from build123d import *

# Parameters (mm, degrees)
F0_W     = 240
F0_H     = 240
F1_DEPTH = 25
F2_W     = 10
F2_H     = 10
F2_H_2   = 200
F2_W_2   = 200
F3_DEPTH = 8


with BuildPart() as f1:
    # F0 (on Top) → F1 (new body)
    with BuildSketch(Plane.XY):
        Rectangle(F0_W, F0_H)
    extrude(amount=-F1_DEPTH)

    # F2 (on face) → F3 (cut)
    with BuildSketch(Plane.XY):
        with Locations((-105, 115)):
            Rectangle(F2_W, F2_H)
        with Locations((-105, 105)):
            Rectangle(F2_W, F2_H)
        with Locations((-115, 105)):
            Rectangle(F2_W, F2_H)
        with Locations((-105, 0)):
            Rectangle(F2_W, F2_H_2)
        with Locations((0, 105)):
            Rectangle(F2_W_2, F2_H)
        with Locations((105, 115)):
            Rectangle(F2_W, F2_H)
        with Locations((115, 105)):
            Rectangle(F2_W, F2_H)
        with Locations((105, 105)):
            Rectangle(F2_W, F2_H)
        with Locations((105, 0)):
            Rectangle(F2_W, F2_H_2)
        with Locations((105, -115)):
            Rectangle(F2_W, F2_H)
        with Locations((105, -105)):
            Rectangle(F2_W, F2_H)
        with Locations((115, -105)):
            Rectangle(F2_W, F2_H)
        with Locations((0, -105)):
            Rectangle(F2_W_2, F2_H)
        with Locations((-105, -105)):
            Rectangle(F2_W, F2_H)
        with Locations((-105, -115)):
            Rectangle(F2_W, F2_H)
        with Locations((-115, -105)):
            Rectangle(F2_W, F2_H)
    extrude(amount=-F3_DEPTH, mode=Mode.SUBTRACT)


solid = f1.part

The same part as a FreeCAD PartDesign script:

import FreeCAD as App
import Part
import Sketcher

doc = App.newDocument("Part")
params = doc.addObject("Spreadsheet::Sheet", "Params")
for row, (alias, value) in enumerate([
    ("sketch1_width", "240 mm"),
    ("pad1_length", "25 mm"),
    ("sketch2_width", "10 mm"),
    ("sketch2_width2", "200 mm"),
    ("pocket1_length", "8 mm"),
], start=1):
    params.set(f"A{row}", alias)
    params.set(f"B{row}", "=" + value)
    params.setAlias(f"B{row}", alias)

body = doc.addObject("PartDesign::Body", "Body")

sketch1 = body.newObject("Sketcher::SketchObject", "Sketch")
sketch1.AttachmentSupport = (doc.getObject("XY_Plane"), [""])
sketch1.MapMode = "FlatFace"
sketch1.addGeometry(Part.LineSegment(App.Vector(-120, 120, 0), App.Vector(-120, -120, 0)), False)
sketch1.addGeometry(Part.LineSegment(App.Vector(-120, -120, 0), App.Vector(120, -120, 0)), False)
sketch1.addGeometry(Part.LineSegment(App.Vector(120, -120, 0), App.Vector(120, 120, 0)), False)
sketch1.addGeometry(Part.LineSegment(App.Vector(120, 120, 0), App.Vector(-120, 120, 0)), False)
sketch1.addConstraint(Sketcher.Constraint("Coincident", 0, 2, 1, 1))
sketch1.addConstraint(Sketcher.Constraint("Coincident", 1, 2, 2, 1))
sketch1.addConstraint(Sketcher.Constraint("Coincident", 2, 2, 3, 1))
sketch1.addConstraint(Sketcher.Constraint("Coincident", 3, 2, 0, 1))
sketch1.addConstraint(Sketcher.Constraint("Vertical", 0))
sketch1.addConstraint(Sketcher.Constraint("Horizontal", 1))
sketch1.addConstraint(Sketcher.Constraint("Vertical", 2))
sketch1.addConstraint(Sketcher.Constraint("Horizontal", 3))
sketch1.addConstraint(Sketcher.Constraint("Symmetric", 0, 2, 2, 2, -1, 1))
sketch1.addConstraint(Sketcher.Constraint("Equal", 3, 0))
sketch1.addConstraint(Sketcher.Constraint("DistanceX", 1, 1, 1, 2, 240.0))
sketch1.setExpression("Constraints[10]", "Params.sketch1_width")
pad1 = body.newObject("PartDesign::Pad", "Pad")
pad1.Profile = sketch1
pad1.setExpression("Length", "Params.pad1_length")
pad1.Reversed = True

sketch2 = body.newObject("Sketcher::SketchObject", "Sketch001")
sketch2.AttachmentSupport = (doc.getObject("XY_Plane"), [""])
sketch2.MapMode = "FlatFace"
sketch2.addGeometry(Part.LineSegment(App.Vector(-110, 100, 0), App.Vector(-110, -100, 0)), False)
sketch2.addGeometry(Part.LineSegment(App.Vector(-110, -100, 0), App.Vector(-120, -100, 0)), False)
sketch2.addGeometry(Part.LineSegment(App.Vector(-120, -100, 0), App.Vector(-120, -110, 0)), False)
sketch2.addGeometry(Part.LineSegment(App.Vector(-120, -110, 0), App.Vector(-110, -110, 0)), False)
sketch2.addGeometry(Part.LineSegment(App.Vector(-110, -110, 0), App.Vector(-110, -120, 0)), False)
sketch2.addGeometry(Part.LineSegment(App.Vector(-110, -120, 0), App.Vector(-100, -120, 0)), False)
sketch2.addGeometry(Part.LineSegment(App.Vector(-100, -120, 0), App.Vector(-100, -110, 0)), False)
sketch2.addGeometry(Part.LineSegment(App.Vector(-100, -110, 0), App.Vector(100, -110, 0)), False)
sketch2.addGeometry(Part.LineSegment(App.Vector(100, -110, 0), App.Vector(100, -120, 0)), False)
sketch2.addGeometry(Part.LineSegment(App.Vector(100, -120, 0), App.Vector(110, -120, 0)), False)
sketch2.addGeometry(Part.LineSegment(App.Vector(110, -120, 0), App.Vector(110, -110, 0)), False)
sketch2.addGeometry(Part.LineSegment(App.Vector(110, -110, 0), App.Vector(120, -110, 0)), False)
sketch2.addGeometry(Part.LineSegment(App.Vector(120, -110, 0), App.Vector(120, -100, 0)), False)
sketch2.addGeometry(Part.LineSegment(App.Vector(120, -100, 0), App.Vector(110, -100, 0)), False)
sketch2.addGeometry(Part.LineSegment(App.Vector(110, -100, 0), App.Vector(110, 100, 0)), False)
sketch2.addGeometry(Part.LineSegment(App.Vector(110, 100, 0), App.Vector(120, 100, 0)), False)
sketch2.addGeometry(Part.LineSegment(App.Vector(120, 100, 0), App.Vector(120, 110, 0)), False)
sketch2.addGeometry(Part.LineSegment(App.Vector(120, 110, 0), App.Vector(110, 110, 0)), False)
sketch2.addGeometry(Part.LineSegment(App.Vector(110, 110, 0), App.Vector(110, 120, 0)), False)
sketch2.addGeometry(Part.LineSegment(App.Vector(110, 120, 0), App.Vector(100, 120, 0)), False)
sketch2.addGeometry(Part.LineSegment(App.Vector(100, 120, 0), App.Vector(100, 110, 0)), False)
sketch2.addGeometry(Part.LineSegment(App.Vector(100, 110, 0), App.Vector(-100, 110, 0)), False)
sketch2.addGeometry(Part.LineSegment(App.Vector(-100, 110, 0), App.Vector(-100, 120, 0)), False)
sketch2.addGeometry(Part.LineSegment(App.Vector(-100, 120, 0), App.Vector(-110, 120, 0)), False)
sketch2.addGeometry(Part.LineSegment(App.Vector(-110, 120, 0), App.Vector(-110, 110, 0)), False)
sketch2.addGeometry(Part.LineSegment(App.Vector(-110, 110, 0), App.Vector(-120, 110, 0)), False)
sketch2.addGeometry(Part.LineSegment(App.Vector(-120, 110, 0), App.Vector(-120, 100, 0)), False)
sketch2.addGeometry(Part.LineSegment(App.Vector(-120, 100, 0), App.Vector(-110, 100, 0)), False)
sketch2.addGeometry(Part.LineSegment(App.Vector(100, -100, 0), App.Vector(-100, -100, 0)), False)
sketch2.addGeometry(Part.LineSegment(App.Vector(-100, -100, 0), App.Vector(-100, 100, 0)), False)
sketch2.addGeometry(Part.LineSegment(App.Vector(-100, 100, 0), App.Vector(100, 100, 0)), False)
sketch2.addGeometry(Part.LineSegment(App.Vector(100, 100, 0), App.Vector(100, -100, 0)), False)
sketch2.addConstraint(Sketcher.Constraint("Coincident", 0, 2, 1, 1))
sketch2.addConstraint(Sketcher.Constraint("Coincident", 1, 2, 2, 1))
sketch2.addConstraint(Sketcher.Constraint("Coincident", 2, 2, 3, 1))
sketch2.addConstraint(Sketcher.Constraint("Coincident", 3, 2, 4, 1))
sketch2.addConstraint(Sketcher.Constraint("Coincident", 4, 2, 5, 1))
sketch2.addConstraint(Sketcher.Constraint("Coincident", 5, 2, 6, 1))
sketch2.addConstraint(Sketcher.Constraint("Coincident", 6, 2, 7, 1))
sketch2.addConstraint(Sketcher.Constraint("Coincident", 7, 2, 8, 1))
sketch2.addConstraint(Sketcher.Constraint("Coincident", 8, 2, 9, 1))
sketch2.addConstraint(Sketcher.Constraint("Coincident", 9, 2, 10, 1))
sketch2.addConstraint(Sketcher.Constraint("Coincident", 10, 2, 11, 1))
sketch2.addConstraint(Sketcher.Constraint("Coincident", 11, 2, 12, 1))
sketch2.addConstraint(Sketcher.Constraint("Coincident", 12, 2, 13, 1))
sketch2.addConstraint(Sketcher.Constraint("Coincident", 13, 2, 14, 1))
sketch2.addConstraint(Sketcher.Constraint("Coincident", 14, 2, 15, 1))
sketch2.addConstraint(Sketcher.Constraint("Coincident", 15, 2, 16, 1))
sketch2.addConstraint(Sketcher.Constraint("Coincident", 16, 2, 17, 1))
sketch2.addConstraint(Sketcher.Constraint("Coincident", 17, 2, 18, 1))
sketch2.addConstraint(Sketcher.Constraint("Coincident", 18, 2, 19, 1))
sketch2.addConstraint(Sketcher.Constraint("Coincident", 19, 2, 20, 1))
sketch2.addConstraint(Sketcher.Constraint("Coincident", 20, 2, 21, 1))
sketch2.addConstraint(Sketcher.Constraint("Coincident", 21, 2, 22, 1))
sketch2.addConstraint(Sketcher.Constraint("Coincident", 22, 2, 23, 1))
sketch2.addConstraint(Sketcher.Constraint("Coincident", 23, 2, 24, 1))
sketch2.addConstraint(Sketcher.Constraint("Coincident", 24, 2, 25, 1))
sketch2.addConstraint(Sketcher.Constraint("Coincident", 25, 2, 26, 1))
sketch2.addConstraint(Sketcher.Constraint("Coincident", 26, 2, 27, 1))
sketch2.addConstraint(Sketcher.Constraint("Coincident", 27, 2, 0, 1))
sketch2.addConstraint(Sketcher.Constraint("Coincident", 28, 2, 29, 1))
sketch2.addConstraint(Sketcher.Constraint("Coincident", 29, 2, 30, 1))
sketch2.addConstraint(Sketcher.Constraint("Coincident", 30, 2, 31, 1))
sketch2.addConstraint(Sketcher.Constraint("Coincident", 31, 2, 28, 1))
sketch2.addConstraint(Sketcher.Constraint("Vertical", 0))
sketch2.addConstraint(Sketcher.Constraint("Horizontal", 1))
sketch2.addConstraint(Sketcher.Constraint("Vertical", 2))
sketch2.addConstraint(Sketcher.Constraint("Horizontal", 3))
sketch2.addConstraint(Sketcher.Constraint("Vertical", 4))
sketch2.addConstraint(Sketcher.Constraint("Horizontal", 5))
sketch2.addConstraint(Sketcher.Constraint("Vertical", 6))
sketch2.addConstraint(Sketcher.Constraint("Horizontal", 7))
sketch2.addConstraint(Sketcher.Constraint("Vertical", 8))
sketch2.addConstraint(Sketcher.Constraint("Horizontal", 9))
sketch2.addConstraint(Sketcher.Constraint("Vertical", 10))
sketch2.addConstraint(Sketcher.Constraint("Horizontal", 11))
sketch2.addConstraint(Sketcher.Constraint("Vertical", 12))
sketch2.addConstraint(Sketcher.Constraint("Horizontal", 13))
sketch2.addConstraint(Sketcher.Constraint("Vertical", 14))
sketch2.addConstraint(Sketcher.Constraint("Horizontal", 15))
sketch2.addConstraint(Sketcher.Constraint("Vertical", 16))
sketch2.addConstraint(Sketcher.Constraint("Horizontal", 17))
sketch2.addConstraint(Sketcher.Constraint("Vertical", 18))
sketch2.addConstraint(Sketcher.Constraint("Horizontal", 19))
sketch2.addConstraint(Sketcher.Constraint("Vertical", 20))
sketch2.addConstraint(Sketcher.Constraint("Horizontal", 21))
sketch2.addConstraint(Sketcher.Constraint("Vertical", 22))
sketch2.addConstraint(Sketcher.Constraint("Horizontal", 23))
sketch2.addConstraint(Sketcher.Constraint("Vertical", 24))
sketch2.addConstraint(Sketcher.Constraint("Horizontal", 25))
sketch2.addConstraint(Sketcher.Constraint("Vertical", 26))
sketch2.addConstraint(Sketcher.Constraint("Horizontal", 27))
sketch2.addConstraint(Sketcher.Constraint("Horizontal", 28))
sketch2.addConstraint(Sketcher.Constraint("Vertical", 29))
sketch2.addConstraint(Sketcher.Constraint("Horizontal", 30))
sketch2.addConstraint(Sketcher.Constraint("Vertical", 31))
sketch2.addConstraint(Sketcher.Constraint("Symmetric", 0, 2, 14, 2, -1, 1))
sketch2.addConstraint(Sketcher.Constraint("Symmetric", 2, 2, 16, 2, -1, 1))
sketch2.addConstraint(Sketcher.Constraint("Symmetric", 4, 2, 18, 2, -1, 1))
sketch2.addConstraint(Sketcher.Constraint("Symmetric", 6, 2, 20, 2, -1, 1))
sketch2.addConstraint(Sketcher.Constraint("Symmetric", 8, 2, 22, 2, -1, 1))
sketch2.addConstraint(Sketcher.Constraint("Symmetric", 10, 2, 24, 2, -1, 1))
sketch2.addConstraint(Sketcher.Constraint("Symmetric", 12, 2, 26, 2, -1, 1))
sketch2.addConstraint(Sketcher.Constraint("Symmetric", 28, 2, 30, 2, -1, 1))
sketch2.addConstraint(Sketcher.Constraint("Symmetric", 5, 2, 8, 2, -2))
sketch2.addConstraint(Sketcher.Constraint("Symmetric", 3, 2, 10, 2, -2))
sketch2.addConstraint(Sketcher.Constraint("Symmetric", 1, 2, 12, 2, -2))
sketch2.addConstraint(Sketcher.Constraint("Horizontal", 3, 2, 6, 2))
sketch2.addConstraint(Sketcher.Constraint("Horizontal", 13, 2, 28, 2))
sketch2.addConstraint(Sketcher.Constraint("Vertical", 0, 2, 3, 2))
sketch2.addConstraint(Sketcher.Constraint("Vertical", 22, 2, 28, 2))
sketch2.addConstraint(Sketcher.Constraint("Equal", 3, 5))
sketch2.addConstraint(Sketcher.Constraint("Equal", 30, 0))
sketch2.addConstraint(Sketcher.Constraint("Equal", 27, 2))
sketch2.addConstraint(Sketcher.Constraint("Equal", 2, 4))
sketch2.addConstraint(Sketcher.Constraint("DistanceX", 1, 2, 1, 1, 10.0))
sketch2.addConstraint(Sketcher.Constraint("DistanceX", 7, 1, 7, 2, 200.0))
sketch2.setExpression("Constraints[83]", "Params.sketch2_width")
sketch2.setExpression("Constraints[84]", "Params.sketch2_width2")
pocket1 = body.newObject("PartDesign::Pocket", "Pocket")
pocket1.Profile = sketch2
pocket1.setExpression("Length", "Params.pocket1_length")

doc.recompute()
